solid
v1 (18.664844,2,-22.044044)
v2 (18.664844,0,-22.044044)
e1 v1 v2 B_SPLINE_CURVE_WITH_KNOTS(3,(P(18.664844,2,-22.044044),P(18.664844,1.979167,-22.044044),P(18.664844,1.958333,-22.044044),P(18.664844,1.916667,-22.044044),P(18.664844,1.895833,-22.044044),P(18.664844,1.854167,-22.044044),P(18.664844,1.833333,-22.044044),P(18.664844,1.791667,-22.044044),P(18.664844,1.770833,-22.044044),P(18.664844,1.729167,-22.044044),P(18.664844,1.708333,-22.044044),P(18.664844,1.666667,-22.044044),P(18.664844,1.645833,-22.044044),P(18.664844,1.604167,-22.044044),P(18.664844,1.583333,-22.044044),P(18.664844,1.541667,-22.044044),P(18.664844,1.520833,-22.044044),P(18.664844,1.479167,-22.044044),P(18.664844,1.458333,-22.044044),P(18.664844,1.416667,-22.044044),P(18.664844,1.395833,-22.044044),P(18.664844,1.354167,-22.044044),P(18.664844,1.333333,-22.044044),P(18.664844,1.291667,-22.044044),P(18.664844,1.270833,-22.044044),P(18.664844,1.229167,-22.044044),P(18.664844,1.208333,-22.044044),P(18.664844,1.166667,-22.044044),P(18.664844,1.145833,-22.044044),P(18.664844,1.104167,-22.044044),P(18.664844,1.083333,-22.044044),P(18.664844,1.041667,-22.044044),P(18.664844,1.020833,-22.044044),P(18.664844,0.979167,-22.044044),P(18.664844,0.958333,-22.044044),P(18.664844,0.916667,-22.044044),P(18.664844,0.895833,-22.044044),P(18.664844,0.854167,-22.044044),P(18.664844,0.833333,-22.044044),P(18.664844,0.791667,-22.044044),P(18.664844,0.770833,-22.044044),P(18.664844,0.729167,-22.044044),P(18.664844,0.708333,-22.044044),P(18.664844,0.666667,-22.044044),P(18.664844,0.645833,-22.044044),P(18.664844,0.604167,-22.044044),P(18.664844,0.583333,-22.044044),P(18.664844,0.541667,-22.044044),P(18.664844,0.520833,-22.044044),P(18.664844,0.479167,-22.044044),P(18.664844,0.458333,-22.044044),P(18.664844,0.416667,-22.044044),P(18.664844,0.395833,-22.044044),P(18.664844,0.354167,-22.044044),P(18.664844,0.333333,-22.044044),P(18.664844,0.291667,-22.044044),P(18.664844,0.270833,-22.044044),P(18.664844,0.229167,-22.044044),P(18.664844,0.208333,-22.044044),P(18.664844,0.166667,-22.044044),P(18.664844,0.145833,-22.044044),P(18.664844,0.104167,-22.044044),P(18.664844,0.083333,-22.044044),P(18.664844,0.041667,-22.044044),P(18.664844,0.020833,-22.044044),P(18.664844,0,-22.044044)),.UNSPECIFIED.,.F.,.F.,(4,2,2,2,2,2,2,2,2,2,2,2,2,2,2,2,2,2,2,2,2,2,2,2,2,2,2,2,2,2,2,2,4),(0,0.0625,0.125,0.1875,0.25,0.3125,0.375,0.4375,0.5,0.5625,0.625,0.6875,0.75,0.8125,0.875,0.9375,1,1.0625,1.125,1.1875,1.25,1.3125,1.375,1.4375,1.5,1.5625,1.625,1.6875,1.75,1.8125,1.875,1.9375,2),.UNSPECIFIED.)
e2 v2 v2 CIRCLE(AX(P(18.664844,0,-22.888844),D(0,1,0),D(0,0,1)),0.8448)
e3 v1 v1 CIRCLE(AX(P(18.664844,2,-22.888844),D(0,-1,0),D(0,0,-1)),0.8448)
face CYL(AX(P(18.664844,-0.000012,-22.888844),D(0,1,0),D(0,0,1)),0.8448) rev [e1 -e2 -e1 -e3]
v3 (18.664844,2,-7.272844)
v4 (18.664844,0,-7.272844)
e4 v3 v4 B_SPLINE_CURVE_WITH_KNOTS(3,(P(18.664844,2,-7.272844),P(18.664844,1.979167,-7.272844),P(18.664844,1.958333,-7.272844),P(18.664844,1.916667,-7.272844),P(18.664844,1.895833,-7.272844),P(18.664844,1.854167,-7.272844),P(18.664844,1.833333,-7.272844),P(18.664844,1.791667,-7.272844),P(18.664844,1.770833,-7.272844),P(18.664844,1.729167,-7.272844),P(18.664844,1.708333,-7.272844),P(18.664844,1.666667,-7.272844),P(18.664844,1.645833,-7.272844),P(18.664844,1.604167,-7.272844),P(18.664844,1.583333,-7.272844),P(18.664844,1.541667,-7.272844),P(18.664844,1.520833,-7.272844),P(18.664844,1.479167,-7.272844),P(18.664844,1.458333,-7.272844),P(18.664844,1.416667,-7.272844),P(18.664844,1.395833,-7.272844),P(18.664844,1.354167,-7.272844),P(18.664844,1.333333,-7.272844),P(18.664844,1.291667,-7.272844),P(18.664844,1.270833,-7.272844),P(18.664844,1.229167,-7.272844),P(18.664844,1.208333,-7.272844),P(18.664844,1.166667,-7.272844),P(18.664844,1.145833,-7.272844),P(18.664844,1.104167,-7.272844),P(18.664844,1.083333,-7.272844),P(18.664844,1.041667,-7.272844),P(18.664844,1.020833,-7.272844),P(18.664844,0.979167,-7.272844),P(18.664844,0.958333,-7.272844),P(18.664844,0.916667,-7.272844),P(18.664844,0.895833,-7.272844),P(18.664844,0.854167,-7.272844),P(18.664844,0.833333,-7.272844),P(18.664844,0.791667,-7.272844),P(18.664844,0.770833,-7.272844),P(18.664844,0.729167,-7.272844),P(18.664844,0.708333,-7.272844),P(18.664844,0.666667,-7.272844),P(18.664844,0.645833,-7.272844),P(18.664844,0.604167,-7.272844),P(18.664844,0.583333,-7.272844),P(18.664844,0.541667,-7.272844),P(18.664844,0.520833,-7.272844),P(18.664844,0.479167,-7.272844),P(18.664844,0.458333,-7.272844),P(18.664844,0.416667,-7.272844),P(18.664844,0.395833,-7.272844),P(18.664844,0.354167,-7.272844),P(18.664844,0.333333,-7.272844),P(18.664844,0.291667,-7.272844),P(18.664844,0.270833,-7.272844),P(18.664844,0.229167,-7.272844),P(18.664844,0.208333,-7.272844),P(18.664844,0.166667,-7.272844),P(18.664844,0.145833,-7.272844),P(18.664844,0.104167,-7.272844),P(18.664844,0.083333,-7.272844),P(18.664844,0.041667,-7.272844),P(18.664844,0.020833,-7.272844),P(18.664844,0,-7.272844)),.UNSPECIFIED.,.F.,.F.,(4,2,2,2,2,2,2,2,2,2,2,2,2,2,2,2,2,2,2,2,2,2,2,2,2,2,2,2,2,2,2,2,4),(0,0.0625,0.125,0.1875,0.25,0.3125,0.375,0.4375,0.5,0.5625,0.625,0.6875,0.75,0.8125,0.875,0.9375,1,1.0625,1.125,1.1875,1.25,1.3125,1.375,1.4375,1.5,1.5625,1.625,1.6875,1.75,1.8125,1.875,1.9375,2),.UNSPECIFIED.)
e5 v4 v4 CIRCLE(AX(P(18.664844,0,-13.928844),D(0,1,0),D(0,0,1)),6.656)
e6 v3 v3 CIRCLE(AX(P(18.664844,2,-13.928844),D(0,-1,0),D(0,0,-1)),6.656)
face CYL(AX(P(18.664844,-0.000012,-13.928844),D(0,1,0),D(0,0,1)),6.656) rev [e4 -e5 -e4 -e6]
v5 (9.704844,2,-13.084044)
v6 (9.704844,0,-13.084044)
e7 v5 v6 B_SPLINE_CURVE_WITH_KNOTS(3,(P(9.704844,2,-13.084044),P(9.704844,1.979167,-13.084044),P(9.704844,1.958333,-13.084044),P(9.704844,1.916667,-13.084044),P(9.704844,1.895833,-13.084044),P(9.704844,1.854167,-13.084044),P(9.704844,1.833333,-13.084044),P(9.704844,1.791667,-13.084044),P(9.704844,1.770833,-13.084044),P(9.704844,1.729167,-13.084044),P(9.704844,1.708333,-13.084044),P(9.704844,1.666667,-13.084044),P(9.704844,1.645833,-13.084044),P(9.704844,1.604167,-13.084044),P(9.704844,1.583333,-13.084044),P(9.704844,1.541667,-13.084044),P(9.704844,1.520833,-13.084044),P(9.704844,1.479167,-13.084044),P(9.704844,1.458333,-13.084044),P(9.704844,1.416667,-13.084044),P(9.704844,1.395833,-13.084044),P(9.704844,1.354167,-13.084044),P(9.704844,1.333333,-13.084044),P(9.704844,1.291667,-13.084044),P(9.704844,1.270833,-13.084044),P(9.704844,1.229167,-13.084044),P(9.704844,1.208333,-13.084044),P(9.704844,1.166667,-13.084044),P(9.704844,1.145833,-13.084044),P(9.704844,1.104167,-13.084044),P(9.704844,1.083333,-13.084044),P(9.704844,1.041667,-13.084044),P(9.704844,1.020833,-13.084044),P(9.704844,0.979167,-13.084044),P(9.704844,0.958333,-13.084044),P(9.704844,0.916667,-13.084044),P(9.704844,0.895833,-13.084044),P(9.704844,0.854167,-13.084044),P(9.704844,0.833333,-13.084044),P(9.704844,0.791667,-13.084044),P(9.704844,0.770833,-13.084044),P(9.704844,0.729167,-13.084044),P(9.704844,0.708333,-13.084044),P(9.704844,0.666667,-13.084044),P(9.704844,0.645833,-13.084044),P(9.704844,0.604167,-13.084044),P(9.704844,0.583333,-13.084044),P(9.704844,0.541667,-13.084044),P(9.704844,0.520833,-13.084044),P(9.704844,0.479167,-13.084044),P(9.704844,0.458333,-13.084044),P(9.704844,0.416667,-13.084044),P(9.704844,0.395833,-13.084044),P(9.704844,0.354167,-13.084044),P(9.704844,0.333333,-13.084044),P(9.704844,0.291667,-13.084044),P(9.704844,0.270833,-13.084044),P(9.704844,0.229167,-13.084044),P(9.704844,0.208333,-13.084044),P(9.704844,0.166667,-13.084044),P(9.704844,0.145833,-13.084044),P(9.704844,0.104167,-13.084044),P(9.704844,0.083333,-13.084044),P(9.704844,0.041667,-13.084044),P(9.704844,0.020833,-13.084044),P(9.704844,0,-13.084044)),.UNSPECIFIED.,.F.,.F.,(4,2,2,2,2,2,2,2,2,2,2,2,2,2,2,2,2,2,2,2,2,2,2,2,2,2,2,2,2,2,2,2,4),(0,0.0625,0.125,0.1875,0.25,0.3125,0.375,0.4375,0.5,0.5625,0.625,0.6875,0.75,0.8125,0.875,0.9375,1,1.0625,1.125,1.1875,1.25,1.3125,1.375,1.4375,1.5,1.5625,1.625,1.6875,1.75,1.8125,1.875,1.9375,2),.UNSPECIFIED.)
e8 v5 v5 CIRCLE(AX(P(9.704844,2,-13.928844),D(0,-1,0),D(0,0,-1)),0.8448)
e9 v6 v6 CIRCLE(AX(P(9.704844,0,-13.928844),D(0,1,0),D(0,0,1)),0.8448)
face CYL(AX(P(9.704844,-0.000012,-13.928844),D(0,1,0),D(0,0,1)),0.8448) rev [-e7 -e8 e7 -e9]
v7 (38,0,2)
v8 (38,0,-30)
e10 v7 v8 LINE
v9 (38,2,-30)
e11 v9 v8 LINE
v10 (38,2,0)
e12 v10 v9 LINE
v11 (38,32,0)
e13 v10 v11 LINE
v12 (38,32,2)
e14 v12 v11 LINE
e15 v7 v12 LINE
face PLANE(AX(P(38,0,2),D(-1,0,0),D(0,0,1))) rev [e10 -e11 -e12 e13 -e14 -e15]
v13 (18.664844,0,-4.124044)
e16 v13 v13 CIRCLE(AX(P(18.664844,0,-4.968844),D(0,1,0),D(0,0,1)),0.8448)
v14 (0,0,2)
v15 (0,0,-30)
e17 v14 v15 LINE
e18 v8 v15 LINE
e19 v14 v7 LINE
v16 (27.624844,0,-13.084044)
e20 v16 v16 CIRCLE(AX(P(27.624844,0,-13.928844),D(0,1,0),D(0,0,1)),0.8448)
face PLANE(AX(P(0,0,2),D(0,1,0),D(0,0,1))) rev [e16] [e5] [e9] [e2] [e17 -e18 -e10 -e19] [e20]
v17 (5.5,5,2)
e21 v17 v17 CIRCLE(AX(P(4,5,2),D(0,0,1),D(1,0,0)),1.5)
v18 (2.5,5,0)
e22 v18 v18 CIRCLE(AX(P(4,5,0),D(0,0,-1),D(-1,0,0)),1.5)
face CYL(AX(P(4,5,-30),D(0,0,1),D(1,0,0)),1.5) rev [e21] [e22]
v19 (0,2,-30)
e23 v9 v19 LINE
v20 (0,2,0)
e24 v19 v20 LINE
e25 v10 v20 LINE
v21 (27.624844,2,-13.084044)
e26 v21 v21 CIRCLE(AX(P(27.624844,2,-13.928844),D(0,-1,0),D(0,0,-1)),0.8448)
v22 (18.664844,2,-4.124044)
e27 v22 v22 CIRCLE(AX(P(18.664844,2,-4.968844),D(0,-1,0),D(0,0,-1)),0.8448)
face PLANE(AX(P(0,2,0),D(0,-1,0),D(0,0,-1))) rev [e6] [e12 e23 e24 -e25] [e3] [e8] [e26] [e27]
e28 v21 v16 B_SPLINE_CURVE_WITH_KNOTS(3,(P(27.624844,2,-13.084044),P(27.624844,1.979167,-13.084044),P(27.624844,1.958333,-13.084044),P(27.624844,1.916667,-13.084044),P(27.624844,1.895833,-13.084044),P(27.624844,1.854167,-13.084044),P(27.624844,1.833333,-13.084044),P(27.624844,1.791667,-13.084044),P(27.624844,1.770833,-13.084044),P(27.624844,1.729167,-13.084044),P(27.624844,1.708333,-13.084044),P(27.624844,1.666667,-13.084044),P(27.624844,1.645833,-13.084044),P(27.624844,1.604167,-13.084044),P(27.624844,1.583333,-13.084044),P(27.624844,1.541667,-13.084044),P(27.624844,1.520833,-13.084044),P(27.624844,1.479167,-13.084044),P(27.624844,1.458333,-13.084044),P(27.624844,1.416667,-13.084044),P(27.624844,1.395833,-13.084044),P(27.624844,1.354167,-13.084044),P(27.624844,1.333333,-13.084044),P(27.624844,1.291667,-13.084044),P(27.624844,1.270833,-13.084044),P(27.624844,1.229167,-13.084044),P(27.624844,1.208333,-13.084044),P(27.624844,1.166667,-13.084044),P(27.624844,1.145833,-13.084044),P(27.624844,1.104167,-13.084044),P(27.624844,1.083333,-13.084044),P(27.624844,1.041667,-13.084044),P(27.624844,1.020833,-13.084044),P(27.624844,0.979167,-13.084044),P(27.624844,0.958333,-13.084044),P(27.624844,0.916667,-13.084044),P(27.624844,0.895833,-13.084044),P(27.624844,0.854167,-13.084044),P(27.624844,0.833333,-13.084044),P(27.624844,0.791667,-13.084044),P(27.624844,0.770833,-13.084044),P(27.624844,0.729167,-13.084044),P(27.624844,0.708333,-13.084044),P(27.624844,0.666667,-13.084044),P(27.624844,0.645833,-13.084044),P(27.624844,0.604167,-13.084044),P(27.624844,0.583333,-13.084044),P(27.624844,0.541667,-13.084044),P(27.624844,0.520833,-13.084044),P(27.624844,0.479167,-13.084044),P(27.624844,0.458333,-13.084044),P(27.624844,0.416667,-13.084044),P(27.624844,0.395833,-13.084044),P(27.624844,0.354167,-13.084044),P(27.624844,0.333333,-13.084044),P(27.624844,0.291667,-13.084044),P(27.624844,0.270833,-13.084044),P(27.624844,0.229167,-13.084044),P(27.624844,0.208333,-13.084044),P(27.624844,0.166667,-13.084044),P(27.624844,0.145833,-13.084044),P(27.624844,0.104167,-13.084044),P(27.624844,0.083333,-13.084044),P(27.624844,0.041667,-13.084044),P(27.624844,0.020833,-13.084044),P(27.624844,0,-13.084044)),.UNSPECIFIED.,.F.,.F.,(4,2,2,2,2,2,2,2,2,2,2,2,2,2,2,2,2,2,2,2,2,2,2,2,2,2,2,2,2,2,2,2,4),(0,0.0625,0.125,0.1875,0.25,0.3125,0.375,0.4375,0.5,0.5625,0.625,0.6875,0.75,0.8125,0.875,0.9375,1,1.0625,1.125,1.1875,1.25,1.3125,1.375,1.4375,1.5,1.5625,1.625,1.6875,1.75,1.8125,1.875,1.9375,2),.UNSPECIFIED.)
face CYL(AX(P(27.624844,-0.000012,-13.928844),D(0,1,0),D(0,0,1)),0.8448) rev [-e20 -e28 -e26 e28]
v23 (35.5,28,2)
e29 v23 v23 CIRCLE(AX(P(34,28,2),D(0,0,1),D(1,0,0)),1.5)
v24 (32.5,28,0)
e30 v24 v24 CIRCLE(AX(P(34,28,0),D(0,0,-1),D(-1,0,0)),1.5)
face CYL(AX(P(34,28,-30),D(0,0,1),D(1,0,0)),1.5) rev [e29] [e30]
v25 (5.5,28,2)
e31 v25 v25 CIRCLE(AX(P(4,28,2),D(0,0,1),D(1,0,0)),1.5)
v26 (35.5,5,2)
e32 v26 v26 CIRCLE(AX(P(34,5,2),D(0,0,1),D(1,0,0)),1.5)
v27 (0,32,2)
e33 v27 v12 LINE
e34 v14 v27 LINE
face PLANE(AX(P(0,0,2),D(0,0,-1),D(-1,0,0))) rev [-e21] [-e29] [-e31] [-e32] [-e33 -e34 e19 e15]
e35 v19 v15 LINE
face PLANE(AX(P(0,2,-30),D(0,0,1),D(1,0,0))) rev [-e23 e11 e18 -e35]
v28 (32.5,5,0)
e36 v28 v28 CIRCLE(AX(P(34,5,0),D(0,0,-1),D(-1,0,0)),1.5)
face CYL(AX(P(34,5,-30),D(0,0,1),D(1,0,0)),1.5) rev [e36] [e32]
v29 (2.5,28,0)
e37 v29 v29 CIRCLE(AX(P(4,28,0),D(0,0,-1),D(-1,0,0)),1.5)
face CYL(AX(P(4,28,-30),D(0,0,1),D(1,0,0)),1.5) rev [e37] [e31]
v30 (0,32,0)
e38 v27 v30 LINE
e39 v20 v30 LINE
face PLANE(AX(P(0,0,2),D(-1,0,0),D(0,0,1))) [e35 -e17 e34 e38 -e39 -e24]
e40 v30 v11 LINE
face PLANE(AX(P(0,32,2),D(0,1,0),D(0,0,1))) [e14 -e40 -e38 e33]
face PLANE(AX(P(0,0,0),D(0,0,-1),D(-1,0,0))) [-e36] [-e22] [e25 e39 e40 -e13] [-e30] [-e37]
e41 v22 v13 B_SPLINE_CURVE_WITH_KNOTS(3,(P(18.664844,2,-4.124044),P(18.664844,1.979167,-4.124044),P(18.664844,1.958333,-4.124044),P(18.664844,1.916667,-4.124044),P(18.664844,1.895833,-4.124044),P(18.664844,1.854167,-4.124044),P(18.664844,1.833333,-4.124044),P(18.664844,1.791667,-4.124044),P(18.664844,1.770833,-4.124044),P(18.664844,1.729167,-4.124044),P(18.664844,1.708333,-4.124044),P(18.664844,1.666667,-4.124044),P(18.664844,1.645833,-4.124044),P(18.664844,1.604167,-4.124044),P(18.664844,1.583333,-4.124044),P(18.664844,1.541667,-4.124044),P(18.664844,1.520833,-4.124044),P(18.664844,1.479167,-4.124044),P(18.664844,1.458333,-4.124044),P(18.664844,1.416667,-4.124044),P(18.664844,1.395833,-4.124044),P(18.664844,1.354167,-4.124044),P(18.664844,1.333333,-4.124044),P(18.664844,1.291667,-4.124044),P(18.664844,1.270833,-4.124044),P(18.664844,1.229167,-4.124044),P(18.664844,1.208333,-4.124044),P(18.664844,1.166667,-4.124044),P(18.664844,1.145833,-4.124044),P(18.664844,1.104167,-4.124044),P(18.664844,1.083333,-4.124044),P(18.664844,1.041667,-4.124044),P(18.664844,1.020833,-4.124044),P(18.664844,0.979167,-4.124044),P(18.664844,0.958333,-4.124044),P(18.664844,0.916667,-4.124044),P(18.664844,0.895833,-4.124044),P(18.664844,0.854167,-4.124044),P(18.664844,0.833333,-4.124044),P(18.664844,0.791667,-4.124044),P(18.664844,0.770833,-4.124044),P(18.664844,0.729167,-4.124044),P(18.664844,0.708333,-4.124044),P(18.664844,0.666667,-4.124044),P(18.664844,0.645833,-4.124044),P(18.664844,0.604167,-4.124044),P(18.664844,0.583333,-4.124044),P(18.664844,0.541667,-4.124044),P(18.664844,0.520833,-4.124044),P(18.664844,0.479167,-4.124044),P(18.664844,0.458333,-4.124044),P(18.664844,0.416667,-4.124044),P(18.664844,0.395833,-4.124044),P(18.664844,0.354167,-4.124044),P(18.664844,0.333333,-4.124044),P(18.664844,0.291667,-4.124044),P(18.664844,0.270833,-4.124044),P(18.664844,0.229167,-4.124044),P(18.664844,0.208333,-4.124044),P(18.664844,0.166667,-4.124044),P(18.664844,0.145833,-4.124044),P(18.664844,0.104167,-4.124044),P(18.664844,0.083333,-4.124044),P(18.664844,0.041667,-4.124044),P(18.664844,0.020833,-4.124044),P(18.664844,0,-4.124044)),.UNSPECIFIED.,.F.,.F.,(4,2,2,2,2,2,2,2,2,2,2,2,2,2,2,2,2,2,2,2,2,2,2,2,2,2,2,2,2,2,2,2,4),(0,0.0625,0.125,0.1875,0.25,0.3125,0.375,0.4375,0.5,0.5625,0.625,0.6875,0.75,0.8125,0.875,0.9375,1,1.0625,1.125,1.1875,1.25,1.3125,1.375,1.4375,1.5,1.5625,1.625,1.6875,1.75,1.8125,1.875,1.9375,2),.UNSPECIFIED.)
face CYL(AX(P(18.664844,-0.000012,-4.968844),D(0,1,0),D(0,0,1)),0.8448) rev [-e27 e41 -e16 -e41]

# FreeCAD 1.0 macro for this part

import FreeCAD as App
import Part
import Sketcher
Q = App.Units.Quantity

doc = App.newDocument("Part")
body = doc.addObject("PartDesign::Body", "Body")

# Sketch on XY plane
sketch1 = body.newObject("Sketcher::SketchObject", "Sketch")
sketch1.AttachmentSupport = (doc.getObject("XY_Plane"), [""])
sketch1.MapMode = "FlatFace"
sketch1.addGeometry([
    Part.LineSegment(App.Vector(0, 32, 0), App.Vector(0, 0, 0)),
    Part.LineSegment(App.Vector(0, 0, 0), App.Vector(38, 0, 0)),
    Part.LineSegment(App.Vector(38, 0, 0), App.Vector(38, 32, 0)),
    Part.LineSegment(App.Vector(38, 32, 0), App.Vector(0, 32, 0)),
], False)
sketch1.addConstraint([
    Sketcher.Constraint("Coincident", 0, 2, 1, 1),
    Sketcher.Constraint("Coincident", 1, 2, 2, 1),
    Sketcher.Constraint("Coincident", 2, 2, 3, 1),
    Sketcher.Constraint("Coincident", 3, 2, 0, 1),
    Sketcher.Constraint("Vertical", 0),
    Sketcher.Constraint("Horizontal", 1),
    Sketcher.Constraint("Vertical", 2),
    Sketcher.Constraint("Horizontal", 3),
    Sketcher.Constraint("Coincident", 0, 2, -1, 1),
    Sketcher.Constraint("DistanceX", 1, 1, 1, 2, Q("38 mm")),
    Sketcher.Constraint("DistanceY", 0, 2, 0, 1, Q("32 mm")),
])
pad1 = body.newObject("PartDesign::Pad", "Pad")
pad1.Profile = sketch1
pad1.Length = 2

# Sketch on XZ plane
sketch2 = body.newObject("Sketcher::SketchObject", "Sketch001")
sketch2.AttachmentSupport = (doc.getObject("XZ_Plane"), [""])
sketch2.MapMode = "FlatFace"
sketch2.addGeometry([
    Part.LineSegment(App.Vector(0, -30, 0), App.Vector(0, 2, 0)),
    Part.LineSegment(App.Vector(0, 2, 0), App.Vector(38, 2, 0)),
    Part.LineSegment(App.Vector(38, 2, 0), App.Vector(38, -30, 0)),
    Part.LineSegment(App.Vector(38, -30, 0), App.Vector(0, -30, 0)),
], False)
sketch2.addConstraint([
    Sketcher.Constraint("Coincident", 0, 2, 1, 1),
    Sketcher.Constraint("Coincident", 1, 2, 2, 1),
    Sketcher.Constraint("Coincident", 2, 2, 3, 1),
    Sketcher.Constraint("Coincident", 3, 2, 0, 1),
    Sketcher.Constraint("Vertical", 0),
    Sketcher.Constraint("Horizontal", 1),
    Sketcher.Constraint("Vertical", 2),
    Sketcher.Constraint("Horizontal", 3),
    Sketcher.Constraint("PointOnObject", 0, 2, -2),
    Sketcher.Constraint("DistanceX", 1, 1, 1, 2, Q("38 mm")),
    Sketcher.Constraint("DistanceY", 0, 1, 0, 2, Q("32 mm")),
    Sketcher.Constraint("DistanceY", -1, 1, 0, 2, Q("2 mm")),
])
pad2 = body.newObject("PartDesign::Pad", "Pad001")
pad2.Profile = sketch2
pad2.Length = 2
pad2.Reversed = True

# Sketch on XY plane
sketch3 = body.newObject("Sketcher::SketchObject", "Sketch002")
sketch3.AttachmentSupport = (doc.getObject("XY_Plane"), [""])
sketch3.MapMode = "FlatFace"
sketch3.addGeometry([
    Part.Circle(App.Vector(4, 5, 0), App.Vector(0, 0, 1), 1.5),
    Part.Circle(App.Vector(4, 28, 0), App.Vector(0, 0, 1), 1.5),
    Part.Circle(App.Vector(34, 5, 0), App.Vector(0, 0, 1), 1.5),
    Part.Circle(App.Vector(34, 28, 0), App.Vector(0, 0, 1), 1.5),
], False)
sketch3.addConstraint([
    Sketcher.Constraint("Equal", 0, 1),
    Sketcher.Constraint("Equal", 1, 2),
    Sketcher.Constraint("Equal", 2, 3),
    Sketcher.Constraint("Horizontal", 0, 3, 2, 3),
    Sketcher.Constraint("Horizontal", 1, 3, 3, 3),
    Sketcher.Constraint("Vertical", 0, 3, 1, 3),
    Sketcher.Constraint("Vertical", 2, 3, 3, 3),
    Sketcher.Constraint("Diameter", 0, Q("3 mm")),
    Sketcher.Constraint("DistanceX", -1, 1, 0, 3, Q("4 mm")),
    Sketcher.Constraint("DistanceY", -1, 1, 0, 3, Q("5 mm")),
    Sketcher.Constraint("DistanceY", -1, 1, 1, 3, Q("28 mm")),
    Sketcher.Constraint("DistanceX", -1, 1, 2, 3, Q("34 mm")),
])
pocket1 = body.newObject("PartDesign::Pocket", "Pocket")
pocket1.Profile = sketch3
pocket1.Type = "ThroughAll"
pocket1.Midplane = True

# Sketch on XZ plane
sketch4 = body.newObject("Sketcher::SketchObject", "Sketch003")
sketch4.AttachmentSupport = (doc.getObject("XZ_Plane"), [""])
sketch4.MapMode = "FlatFace"
sketch4.addGeometry([
    Part.Circle(App.Vector(18.664844, -13.928844, 0), App.Vector(0, 0, 1), 6.656),  # 0
    Part.Circle(App.Vector(9.704844, -13.928844, 0), App.Vector(0, 0, 1), 0.8448),  # 1
    Part.Circle(App.Vector(18.664844, -22.888844, 0), App.Vector(0, 0, 1), 0.8448),  # 2
    Part.Circle(App.Vector(27.624844, -13.928844, 0), App.Vector(0, 0, 1), 0.8448),  # 3
    Part.Circle(App.Vector(18.664844, -4.968844, 0), App.Vector(0, 0, 1), 0.8448),  # 4
], False)
sketch4.addConstraint([
    Sketcher.Constraint("Equal", 1, 2),
    Sketcher.Constraint("Equal", 2, 3),
    Sketcher.Constraint("Equal", 3, 4),
    Sketcher.Constraint("Horizontal", 0, 3, 1, 3),
    Sketcher.Constraint("Horizontal", 1, 3, 3, 3),
    Sketcher.Constraint("Vertical", 0, 3, 2, 3),
    Sketcher.Constraint("Vertical", 2, 3, 4, 3),
    Sketcher.Constraint("Diameter", 0, Q("13.312 mm")),
    Sketcher.Constraint("Diameter", 1, Q("1.6896 mm")),
    Sketcher.Constraint("DistanceX", 1, 3, 0, 3, Q("8.96 mm")),
    Sketcher.Constraint("DistanceY", 2, 3, 0, 3, Q("8.96 mm")),
    Sketcher.Constraint("DistanceX", 0, 3, 3, 3, Q("8.96 mm")),
    Sketcher.Constraint("DistanceY", 0, 3, 4, 3, Q("8.96 mm")),
    Sketcher.Constraint("DistanceX", -1, 1, 0, 3, Q("18.664844 mm")),
    Sketcher.Constraint("DistanceY", 0, 3, -1, 1, Q("13.928844 mm")),
])
pocket2 = body.newObject("PartDesign::Pocket", "Pocket001")
pocket2.Profile = sketch4
pocket2.Type = "ThroughAll"
pocket2.Midplane = True

doc.recompute()
